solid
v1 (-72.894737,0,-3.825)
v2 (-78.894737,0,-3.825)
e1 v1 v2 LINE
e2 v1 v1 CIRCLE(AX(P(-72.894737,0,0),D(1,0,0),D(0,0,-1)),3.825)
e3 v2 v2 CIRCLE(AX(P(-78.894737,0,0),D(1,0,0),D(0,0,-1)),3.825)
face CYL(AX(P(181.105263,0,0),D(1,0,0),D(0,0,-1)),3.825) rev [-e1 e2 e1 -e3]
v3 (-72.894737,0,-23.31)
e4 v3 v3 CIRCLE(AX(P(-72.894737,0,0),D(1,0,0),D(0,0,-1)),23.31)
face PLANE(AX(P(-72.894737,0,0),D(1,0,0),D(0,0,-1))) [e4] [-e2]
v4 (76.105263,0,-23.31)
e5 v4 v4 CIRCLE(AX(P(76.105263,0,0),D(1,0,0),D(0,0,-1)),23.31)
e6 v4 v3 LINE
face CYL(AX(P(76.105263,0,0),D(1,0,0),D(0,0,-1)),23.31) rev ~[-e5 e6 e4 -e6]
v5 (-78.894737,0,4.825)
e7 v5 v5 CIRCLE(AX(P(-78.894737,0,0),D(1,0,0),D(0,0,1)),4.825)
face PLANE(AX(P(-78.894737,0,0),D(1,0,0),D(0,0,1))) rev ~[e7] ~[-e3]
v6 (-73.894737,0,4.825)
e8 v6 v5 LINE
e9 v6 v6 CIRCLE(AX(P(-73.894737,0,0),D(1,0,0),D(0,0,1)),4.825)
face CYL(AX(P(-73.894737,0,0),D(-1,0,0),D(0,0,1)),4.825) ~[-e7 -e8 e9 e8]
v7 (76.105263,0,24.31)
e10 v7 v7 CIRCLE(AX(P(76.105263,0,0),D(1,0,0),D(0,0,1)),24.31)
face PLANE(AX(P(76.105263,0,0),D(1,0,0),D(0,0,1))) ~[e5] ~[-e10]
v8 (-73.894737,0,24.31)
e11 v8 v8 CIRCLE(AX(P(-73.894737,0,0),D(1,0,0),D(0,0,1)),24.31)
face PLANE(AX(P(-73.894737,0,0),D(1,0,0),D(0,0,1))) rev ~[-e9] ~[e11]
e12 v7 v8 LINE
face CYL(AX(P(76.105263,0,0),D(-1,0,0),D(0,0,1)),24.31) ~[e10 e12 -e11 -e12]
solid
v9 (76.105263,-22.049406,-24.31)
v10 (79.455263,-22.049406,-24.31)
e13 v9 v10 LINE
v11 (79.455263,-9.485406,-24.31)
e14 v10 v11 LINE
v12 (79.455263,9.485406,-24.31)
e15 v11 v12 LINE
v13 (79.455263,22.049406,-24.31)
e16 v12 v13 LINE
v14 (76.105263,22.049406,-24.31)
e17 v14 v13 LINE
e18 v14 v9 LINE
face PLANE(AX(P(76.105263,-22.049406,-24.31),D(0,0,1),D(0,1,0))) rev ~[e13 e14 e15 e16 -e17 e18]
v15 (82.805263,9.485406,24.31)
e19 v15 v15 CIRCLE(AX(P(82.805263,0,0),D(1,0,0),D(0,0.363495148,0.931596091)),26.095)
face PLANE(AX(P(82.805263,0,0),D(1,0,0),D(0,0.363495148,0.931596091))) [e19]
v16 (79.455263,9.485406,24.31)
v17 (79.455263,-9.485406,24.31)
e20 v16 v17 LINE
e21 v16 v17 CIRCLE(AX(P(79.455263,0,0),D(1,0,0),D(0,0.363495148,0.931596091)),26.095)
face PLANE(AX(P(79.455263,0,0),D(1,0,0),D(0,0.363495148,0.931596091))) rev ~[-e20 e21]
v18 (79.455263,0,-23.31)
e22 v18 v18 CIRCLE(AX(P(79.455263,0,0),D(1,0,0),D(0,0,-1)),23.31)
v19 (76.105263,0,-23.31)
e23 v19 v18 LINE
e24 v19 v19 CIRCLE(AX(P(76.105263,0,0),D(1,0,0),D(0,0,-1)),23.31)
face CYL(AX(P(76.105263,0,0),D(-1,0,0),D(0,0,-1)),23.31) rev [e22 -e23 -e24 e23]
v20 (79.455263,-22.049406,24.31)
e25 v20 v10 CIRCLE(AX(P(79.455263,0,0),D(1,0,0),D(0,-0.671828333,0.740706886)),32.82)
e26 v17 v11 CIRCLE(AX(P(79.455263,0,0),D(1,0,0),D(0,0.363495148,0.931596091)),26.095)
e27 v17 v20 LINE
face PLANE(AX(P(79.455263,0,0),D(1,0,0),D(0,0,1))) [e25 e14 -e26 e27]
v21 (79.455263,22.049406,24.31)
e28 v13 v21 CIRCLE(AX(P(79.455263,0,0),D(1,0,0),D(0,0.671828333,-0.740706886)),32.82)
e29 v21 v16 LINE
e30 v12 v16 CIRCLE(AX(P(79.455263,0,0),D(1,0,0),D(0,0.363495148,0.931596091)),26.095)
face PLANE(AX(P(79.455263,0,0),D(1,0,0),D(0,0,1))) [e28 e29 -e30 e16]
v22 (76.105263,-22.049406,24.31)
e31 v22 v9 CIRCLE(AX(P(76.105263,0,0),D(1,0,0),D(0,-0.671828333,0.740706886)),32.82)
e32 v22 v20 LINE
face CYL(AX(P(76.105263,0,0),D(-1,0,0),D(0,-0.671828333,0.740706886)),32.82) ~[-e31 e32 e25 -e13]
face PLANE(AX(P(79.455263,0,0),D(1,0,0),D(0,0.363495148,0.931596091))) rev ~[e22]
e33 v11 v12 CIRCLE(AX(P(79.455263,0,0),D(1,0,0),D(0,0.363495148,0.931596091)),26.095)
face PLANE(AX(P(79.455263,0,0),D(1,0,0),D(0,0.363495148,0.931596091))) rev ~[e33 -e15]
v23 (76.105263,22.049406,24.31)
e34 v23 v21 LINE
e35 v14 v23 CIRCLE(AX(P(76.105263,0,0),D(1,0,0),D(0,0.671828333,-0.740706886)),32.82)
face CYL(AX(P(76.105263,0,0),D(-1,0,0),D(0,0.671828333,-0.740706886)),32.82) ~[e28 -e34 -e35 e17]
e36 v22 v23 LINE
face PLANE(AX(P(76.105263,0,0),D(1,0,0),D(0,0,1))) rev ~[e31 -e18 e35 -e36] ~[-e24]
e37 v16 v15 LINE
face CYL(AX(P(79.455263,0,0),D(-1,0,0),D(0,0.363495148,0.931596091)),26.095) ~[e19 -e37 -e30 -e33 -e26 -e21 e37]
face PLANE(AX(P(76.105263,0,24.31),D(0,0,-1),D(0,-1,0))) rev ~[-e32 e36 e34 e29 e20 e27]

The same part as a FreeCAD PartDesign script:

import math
import FreeCAD as App
import Part
import Sketcher
from FreeCAD import Vector
Q = App.Units.Quantity

doc = App.newDocument("Part")
body = doc.addObject("PartDesign::Body", "Body")

sketch1 = body.newObject("Sketcher::SketchObject", "Sketch")
sketch1.AttachmentSupport = (doc.getObject("XY_Plane"), [""])
sketch1.MapMode = "FlatFace"
sketch1.addGeometry(Part.LineSegment(Vector(76.1, 0, 0), Vector(76.1, 24.3, 0)), False)
sketch1.addGeometry(Part.LineSegment(Vector(76.1, 24.3, 0), Vector(-73.9, 24.3, 0)), False)
sketch1.addGeometry(Part.LineSegment(Vector(-73.9, 24.3, 0), Vector(-73.9, 4.8, 0)), False)
sketch1.addGeometry(Part.LineSegment(Vector(-73.9, 4.8, 0), Vector(-78.9, 4.8, 0)), False)
sketch1.addGeometry(Part.LineSegment(Vector(-78.9, 4.8, 0), Vector(-78.9, 0, 0)), False)
sketch1.addGeometry(Part.LineSegment(Vector(-78.9, 0, 0), Vector(76.1, 0, 0)), False)
sketch1.addConstraint(Sketcher.Constraint("Coincident", 0, 2, 1, 1))
sketch1.addConstraint(Sketcher.Constraint("Coincident", 1, 2, 2, 1))
sketch1.addConstraint(Sketcher.Constraint("Coincident", 2, 2, 3, 1))
sketch1.addConstraint(Sketcher.Constraint("Coincident", 3, 2, 4, 1))
sketch1.addConstraint(Sketcher.Constraint("Coincident", 4, 2, 5, 1))
sketch1.addConstraint(Sketcher.Constraint("Coincident", 5, 2, 0, 1))
sketch1.addConstraint(Sketcher.Constraint("Vertical", 0))
sketch1.addConstraint(Sketcher.Constraint("Horizontal", 1))
sketch1.addConstraint(Sketcher.Constraint("Vertical", 2))
sketch1.addConstraint(Sketcher.Constraint("Horizontal", 3))
sketch1.addConstraint(Sketcher.Constraint("Vertical", 4))
sketch1.addConstraint(Sketcher.Constraint("Horizontal", 5))
sketch1.addConstraint(Sketcher.Constraint("PointOnObject", 4, 2, -1))
sketch1.addConstraint(Sketcher.Constraint("DistanceX", 1, 2, 1, 1, Q("150 mm")))
sketch1.addConstraint(Sketcher.Constraint("DistanceX", 3, 2, 3, 1, Q("5 mm")))
sketch1.addConstraint(Sketcher.Constraint("DistanceY", 0, 1, 0, 2, Q("24.31 mm")))
sketch1.addConstraint(Sketcher.Constraint("DistanceY", 2, 2, 2, 1, Q("19.485 mm")))
sketch1.addConstraint(Sketcher.Constraint("DistanceX", -1, 1, 0, 2, Q("76.105263 mm")))
revolution = body.newObject("PartDesign::Revolution", "Revolution")
revolution.Profile = sketch1
revolution.ReferenceAxis = (sketch1, ["H_Axis"])
revolution.Angle = 360

sketch2 = body.newObject("Sketcher::SketchObject", "Sketch001")
sketch2.AttachmentSupport = (doc.getObject("YZ_Plane"), [""])
sketch2.MapMode = "FlatFace"
sketch2.AttachmentOffset = App.Placement(Vector(0, 0, -78.894737), App.Rotation())
sketch2.addGeometry(Part.Circle(Vector(0, 0, 0), Vector(0, 0, 1), 3.8), False)
sketch2.addConstraint(Sketcher.Constraint("Coincident", 0, 3, -1, 1))
sketch2.addConstraint(Sketcher.Constraint("Diameter", 0, Q("7.65 mm")))
pocket1 = body.newObject("PartDesign::Pocket", "Pocket")
pocket1.Profile = sketch2
pocket1.Type = "ThroughAll"
pocket1.Midplane = True

sketch3 = body.newObject("Sketcher::SketchObject", "Sketch002")
sketch3.AttachmentSupport = (doc.getObject("YZ_Plane"), [""])
sketch3.MapMode = "FlatFace"
sketch3.AttachmentOffset = App.Placement(Vector(0, 0, 76.105263), App.Rotation())
sketch3.addGeometry(Part.Circle(Vector(0, 0, 0), Vector(0, 0, 1), 23), False)
sketch3.addConstraint(Sketcher.Constraint("Coincident", 0, 3, -1, 1))
sketch3.addConstraint(Sketcher.Constraint("Diameter", 0, Q("46.62 mm")))
pocket2 = body.newObject("PartDesign::Pocket", "Pocket001")
pocket2.Profile = sketch3
pocket2.Length = 149
body2 = doc.addObject("PartDesign::Body", "Body001")

sketch4 = body2.newObject("Sketcher::SketchObject", "Sketch003")
sketch4.AttachmentSupport = (doc.getObject("YZ_Plane001"), [""])
sketch4.MapMode = "FlatFace"
sketch4.AttachmentOffset = App.Placement(Vector(0, 0, 76.105263), App.Rotation())
sketch4.addGeometry(Part.ArcOfCircle(Part.Circle(Vector(0, 0, 0), Vector(0, 0, 1), 33), math.radians(-48), math.radians(48)), False)
sketch4.addGeometry(Part.LineSegment(Vector(22, 24, 0), Vector(-22, 24, 0)), False)
sketch4.addGeometry(Part.ArcOfCircle(Part.Circle(Vector(0, 0, 0), Vector(0, 0, 1), 33), math.radians(132), math.radians(228)), False)
sketch4.addGeometry(Part.LineSegment(Vector(-22, -24, 0), Vector(22, -24, 0)), False)
sketch4.addGeometry(Part.Circle(Vector(0, 0, 0), Vector(0, 0, 1), 23), False)
sketch4.addConstraint(Sketcher.Constraint("Coincident", 0, 2, 1, 1))
sketch4.addConstraint(Sketcher.Constraint("Coincident", 1, 2, 2, 1))
sketch4.addConstraint(Sketcher.Constraint("Coincident", 2, 2, 3, 1))
sketch4.addConstraint(Sketcher.Constraint("Coincident", 3, 2, 0, 1))
sketch4.addConstraint(Sketcher.Constraint("Horizontal", 1))
sketch4.addConstraint(Sketcher.Constraint("Horizontal", 3))
sketch4.addConstraint(Sketcher.Constraint("Coincident", 0, 3, -1, 1))
sketch4.addConstraint(Sketcher.Constraint("Coincident", 2, 3, -1, 1))
sketch4.addConstraint(Sketcher.Constraint("Coincident", 4, 3, -1, 1))
sketch4.addConstraint(Sketcher.Constraint("Equal", 0, 2))
sketch4.addConstraint(Sketcher.Constraint("Vertical", 1, 2, 2, 2))
sketch4.addConstraint(Sketcher.Constraint("Diameter", 4, Q("46.62 mm")))
sketch4.addConstraint(Sketcher.Constraint("Radius", 0, Q("32.82 mm")))
sketch4.addConstraint(Sketcher.Constraint("DistanceY", -1, 1, 0, 2, Q("24.31 mm")))
pad1 = body2.newObject("PartDesign::Pad", "Pad")
pad1.Profile = sketch4
pad1.Length = 3.35

sketch5 = body2.newObject("Sketcher::SketchObject", "Sketch004")
sketch5.AttachmentSupport = (doc.getObject("YZ_Plane001"), [""])
sketch5.MapMode = "FlatFace"
sketch5.AttachmentOffset = App.Placement(Vector(0, 0, 79.455263), App.Rotation())
sketch5.addGeometry(Part.Circle(Vector(0, 0, 0), Vector(0, 0, 1), 26), False)
sketch5.addConstraint(Sketcher.Constraint("Coincident", 0, 3, -1, 1))
sketch5.addConstraint(Sketcher.Constraint("Diameter", 0, Q("52.19 mm")))
pad2 = body2.newObject("PartDesign::Pad", "Pad001")
pad2.Profile = sketch5
pad2.Length = 3.35

doc.recompute()
